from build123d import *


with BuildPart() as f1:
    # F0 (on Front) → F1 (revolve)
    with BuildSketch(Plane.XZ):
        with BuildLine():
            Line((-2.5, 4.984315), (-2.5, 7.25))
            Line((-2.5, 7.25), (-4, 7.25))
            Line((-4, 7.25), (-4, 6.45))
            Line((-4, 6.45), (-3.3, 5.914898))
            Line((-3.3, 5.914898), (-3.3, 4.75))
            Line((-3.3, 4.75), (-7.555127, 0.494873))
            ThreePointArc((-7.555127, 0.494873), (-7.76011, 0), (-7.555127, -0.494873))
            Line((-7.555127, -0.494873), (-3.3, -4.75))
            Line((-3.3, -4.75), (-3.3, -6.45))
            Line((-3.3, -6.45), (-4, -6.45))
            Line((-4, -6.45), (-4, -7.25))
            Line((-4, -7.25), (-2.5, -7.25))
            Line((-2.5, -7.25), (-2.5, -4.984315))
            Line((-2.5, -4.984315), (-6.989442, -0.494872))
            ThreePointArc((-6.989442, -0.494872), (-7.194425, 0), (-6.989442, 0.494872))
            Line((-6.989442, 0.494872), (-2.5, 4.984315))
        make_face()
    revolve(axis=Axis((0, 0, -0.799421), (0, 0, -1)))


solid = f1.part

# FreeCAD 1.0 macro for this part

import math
import FreeCAD as App
import Part
import Sketcher
from FreeCAD import Vector
Q = App.Units.Quantity

doc = App.newDocument("Part")
body = doc.addObject("PartDesign::Body", "Body")

# Sketch on XZ plane
sketch1 = doc.addObject("Sketcher::SketchObject", "Sketch")
body.addObject(sketch1)
sketch1.AttachmentSupport = (doc.XZ_Plane, [""])
sketch1.MapMode = "FlatFace"
sketch1.addGeometry(Part.LineSegment(Vector(-2.5, 5, 0), Vector(-2.5, 7.2, 0)), False)
sketch1.addGeometry(Part.LineSegment(Vector(-2.5, 7.2, 0), Vector(-4, 7.2, 0)), False)
sketch1.addGeometry(Part.LineSegment(Vector(-4, 7.2, 0), Vector(-4, 6.5, 0)), False)
sketch1.addGeometry(Part.LineSegment(Vector(-4, 6.5, 0), Vector(-3.3, 5.9, 0)), False)
sketch1.addGeometry(Part.LineSegment(Vector(-3.3, 5.9, 0), Vector(-3.3, 4.8, 0)), False)
sketch1.addGeometry(Part.LineSegment(Vector(-3.3, 4.8, 0), Vector(-7.6, 0.5, 0)), False)
sketch1.addGeometry(Part.ArcOfCircle(Part.Circle(Vector(-7.1, 0, 0), Vector(0, 0, 1), 0.7), math.radians(135), math.radians(225)), False)
sketch1.addGeometry(Part.LineSegment(Vector(-7.6, -0.5, 0), Vector(-3.3, -4.8, 0)), False)
sketch1.addGeometry(Part.LineSegment(Vector(-3.3, -4.8, 0), Vector(-3.3, -6.5, 0)), False)
sketch1.addGeometry(Part.LineSegment(Vector(-3.3, -6.5, 0), Vector(-4, -6.5, 0)), False)
sketch1.addGeometry(Part.LineSegment(Vector(-4, -6.5, 0), Vector(-4, -7.2, 0)), False)
sketch1.addGeometry(Part.LineSegment(Vector(-4, -7.2, 0), Vector(-2.5, -7.2, 0)), False)
sketch1.addGeometry(Part.LineSegment(Vector(-2.5, -7.2, 0), Vector(-2.5, -5, 0)), False)
sketch1.addGeometry(Part.LineSegment(Vector(-2.5, -5, 0), Vector(-7, -0.5, 0)), False)
sketch1.addGeometry(Part.ArcOfCircle(Part.Circle(Vector(-6.5, 0, 0), Vector(0, 0, 1), 0.7), math.radians(135), math.radians(225)), False)
sketch1.addGeometry(Part.LineSegment(Vector(-7, 0.5, 0), Vector(-2.5, 5, 0)), False)
sketch1.addConstraint(Sketcher.Constraint("Coincident", 0, 2, 1, 1))
sketch1.addConstraint(Sketcher.Constraint("Coincident", 1, 2, 2, 1))
sketch1.addConstraint(Sketcher.Constraint("Coincident", 2, 2, 3, 1))
sketch1.addConstraint(Sketcher.Constraint("Coincident", 3, 2, 4, 1))
sketch1.addConstraint(Sketcher.Constraint("Coincident", 4, 2, 5, 1))
sketch1.addConstraint(Sketcher.Constraint("Tangent", 5, 2, 6, 1))
sketch1.addConstraint(Sketcher.Constraint("Tangent", 6, 2, 7, 1))
sketch1.addConstraint(Sketcher.Constraint("Coincident", 7, 2, 8, 1))
sketch1.addConstraint(Sketcher.Constraint("Coincident", 8, 2, 9, 1))
sketch1.addConstraint(Sketcher.Constraint("Coincident", 9, 2, 10, 1))
sketch1.addConstraint(Sketcher.Constraint("Coincident", 10, 2, 11, 1))
sketch1.addConstraint(Sketcher.Constraint("Coincident", 11, 2, 12, 1))
sketch1.addConstraint(Sketcher.Constraint("Coincident", 12, 2, 13, 1))
sketch1.addConstraint(Sketcher.Constraint("Tangent", 13, 2, 14, 2))
sketch1.addConstraint(Sketcher.Constraint("Tangent", 14, 1, 15, 1))
sketch1.addConstraint(Sketcher.Constraint("Coincident", 15, 2, 0, 1))
sketch1.addConstraint(Sketcher.Constraint("Vertical", 0))
sketch1.addConstraint(Sketcher.Constraint("Horizontal", 1))
sketch1.addConstraint(Sketcher.Constraint("Vertical", 2))
sketch1.addConstraint(Sketcher.Constraint("Vertical", 4))
sketch1.addConstraint(Sketcher.Constraint("Vertical", 8))
sketch1.addConstraint(Sketcher.Constraint("Horizontal", 9))
sketch1.addConstraint(Sketcher.Constraint("Vertical", 10))
sketch1.addConstraint(Sketcher.Constraint("Horizontal", 11))
sketch1.addConstraint(Sketcher.Constraint("Vertical", 12))
sketch1.addConstraint(Sketcher.Constraint("Symmetric", 5, 2, 6, 2, -1))
sketch1.addConstraint(Sketcher.Constraint("Symmetric", 2, 2, 9, 2, -1))
sketch1.addConstraint(Sketcher.Constraint("Symmetric", 0, 2, 11, 2, -1))
sketch1.addConstraint(Sketcher.Constraint("Symmetric", 13, 2, 14, 1, -1))
sketch1.addConstraint(Sketcher.Constraint("Perpendicular", 5, 7))
sketch1.addConstraint(Sketcher.Constraint("Parallel", 7, 13))
sketch1.addConstraint(Sketcher.Constraint("Horizontal", 6, 2, 13, 2))
sketch1.addConstraint(Sketcher.Constraint("Vertical", 4, 2, 7, 2))
sketch1.addConstraint(Sketcher.Constraint("DistanceX", 1, 2, 1, 1, Q("1.5 mm")))
sketch1.addConstraint(Sketcher.Constraint("DistanceX", 9, 2, 9, 1, Q("0.7 mm")))
sketch1.addConstraint(Sketcher.Constraint("DistanceY", 2, 2, 2, 1, Q("0.8 mm")))
sketch1.addConstraint(Sketcher.Constraint("DistanceY", 8, 2, 8, 1, Q("1.7 mm")))
sketch1.addConstraint(Sketcher.Constraint("DistanceX", 1, 2, -1, 1, Q("4 mm")))
sketch1.addConstraint(Sketcher.Constraint("DistanceY", 7, 2, 4, 2, Q("9.5 mm")))
sketch1.addConstraint(Sketcher.Constraint("Radius", 6, Q("0.699856 mm")))
sketch1.addConstraint(Sketcher.Constraint("Distance", 3, Q("0.881098 mm")))
sketch1.addConstraint(Sketcher.Constraint("Distance", 13, Q("6.34903 mm")))
revolution = doc.addObject("PartDesign::Revolution", "Revolution")
body.addObject(revolution)
revolution.Profile = sketch1
revolution.ReferenceAxis = (sketch1, ["V_Axis"])
revolution.Angle = 360

doc.recompute()
